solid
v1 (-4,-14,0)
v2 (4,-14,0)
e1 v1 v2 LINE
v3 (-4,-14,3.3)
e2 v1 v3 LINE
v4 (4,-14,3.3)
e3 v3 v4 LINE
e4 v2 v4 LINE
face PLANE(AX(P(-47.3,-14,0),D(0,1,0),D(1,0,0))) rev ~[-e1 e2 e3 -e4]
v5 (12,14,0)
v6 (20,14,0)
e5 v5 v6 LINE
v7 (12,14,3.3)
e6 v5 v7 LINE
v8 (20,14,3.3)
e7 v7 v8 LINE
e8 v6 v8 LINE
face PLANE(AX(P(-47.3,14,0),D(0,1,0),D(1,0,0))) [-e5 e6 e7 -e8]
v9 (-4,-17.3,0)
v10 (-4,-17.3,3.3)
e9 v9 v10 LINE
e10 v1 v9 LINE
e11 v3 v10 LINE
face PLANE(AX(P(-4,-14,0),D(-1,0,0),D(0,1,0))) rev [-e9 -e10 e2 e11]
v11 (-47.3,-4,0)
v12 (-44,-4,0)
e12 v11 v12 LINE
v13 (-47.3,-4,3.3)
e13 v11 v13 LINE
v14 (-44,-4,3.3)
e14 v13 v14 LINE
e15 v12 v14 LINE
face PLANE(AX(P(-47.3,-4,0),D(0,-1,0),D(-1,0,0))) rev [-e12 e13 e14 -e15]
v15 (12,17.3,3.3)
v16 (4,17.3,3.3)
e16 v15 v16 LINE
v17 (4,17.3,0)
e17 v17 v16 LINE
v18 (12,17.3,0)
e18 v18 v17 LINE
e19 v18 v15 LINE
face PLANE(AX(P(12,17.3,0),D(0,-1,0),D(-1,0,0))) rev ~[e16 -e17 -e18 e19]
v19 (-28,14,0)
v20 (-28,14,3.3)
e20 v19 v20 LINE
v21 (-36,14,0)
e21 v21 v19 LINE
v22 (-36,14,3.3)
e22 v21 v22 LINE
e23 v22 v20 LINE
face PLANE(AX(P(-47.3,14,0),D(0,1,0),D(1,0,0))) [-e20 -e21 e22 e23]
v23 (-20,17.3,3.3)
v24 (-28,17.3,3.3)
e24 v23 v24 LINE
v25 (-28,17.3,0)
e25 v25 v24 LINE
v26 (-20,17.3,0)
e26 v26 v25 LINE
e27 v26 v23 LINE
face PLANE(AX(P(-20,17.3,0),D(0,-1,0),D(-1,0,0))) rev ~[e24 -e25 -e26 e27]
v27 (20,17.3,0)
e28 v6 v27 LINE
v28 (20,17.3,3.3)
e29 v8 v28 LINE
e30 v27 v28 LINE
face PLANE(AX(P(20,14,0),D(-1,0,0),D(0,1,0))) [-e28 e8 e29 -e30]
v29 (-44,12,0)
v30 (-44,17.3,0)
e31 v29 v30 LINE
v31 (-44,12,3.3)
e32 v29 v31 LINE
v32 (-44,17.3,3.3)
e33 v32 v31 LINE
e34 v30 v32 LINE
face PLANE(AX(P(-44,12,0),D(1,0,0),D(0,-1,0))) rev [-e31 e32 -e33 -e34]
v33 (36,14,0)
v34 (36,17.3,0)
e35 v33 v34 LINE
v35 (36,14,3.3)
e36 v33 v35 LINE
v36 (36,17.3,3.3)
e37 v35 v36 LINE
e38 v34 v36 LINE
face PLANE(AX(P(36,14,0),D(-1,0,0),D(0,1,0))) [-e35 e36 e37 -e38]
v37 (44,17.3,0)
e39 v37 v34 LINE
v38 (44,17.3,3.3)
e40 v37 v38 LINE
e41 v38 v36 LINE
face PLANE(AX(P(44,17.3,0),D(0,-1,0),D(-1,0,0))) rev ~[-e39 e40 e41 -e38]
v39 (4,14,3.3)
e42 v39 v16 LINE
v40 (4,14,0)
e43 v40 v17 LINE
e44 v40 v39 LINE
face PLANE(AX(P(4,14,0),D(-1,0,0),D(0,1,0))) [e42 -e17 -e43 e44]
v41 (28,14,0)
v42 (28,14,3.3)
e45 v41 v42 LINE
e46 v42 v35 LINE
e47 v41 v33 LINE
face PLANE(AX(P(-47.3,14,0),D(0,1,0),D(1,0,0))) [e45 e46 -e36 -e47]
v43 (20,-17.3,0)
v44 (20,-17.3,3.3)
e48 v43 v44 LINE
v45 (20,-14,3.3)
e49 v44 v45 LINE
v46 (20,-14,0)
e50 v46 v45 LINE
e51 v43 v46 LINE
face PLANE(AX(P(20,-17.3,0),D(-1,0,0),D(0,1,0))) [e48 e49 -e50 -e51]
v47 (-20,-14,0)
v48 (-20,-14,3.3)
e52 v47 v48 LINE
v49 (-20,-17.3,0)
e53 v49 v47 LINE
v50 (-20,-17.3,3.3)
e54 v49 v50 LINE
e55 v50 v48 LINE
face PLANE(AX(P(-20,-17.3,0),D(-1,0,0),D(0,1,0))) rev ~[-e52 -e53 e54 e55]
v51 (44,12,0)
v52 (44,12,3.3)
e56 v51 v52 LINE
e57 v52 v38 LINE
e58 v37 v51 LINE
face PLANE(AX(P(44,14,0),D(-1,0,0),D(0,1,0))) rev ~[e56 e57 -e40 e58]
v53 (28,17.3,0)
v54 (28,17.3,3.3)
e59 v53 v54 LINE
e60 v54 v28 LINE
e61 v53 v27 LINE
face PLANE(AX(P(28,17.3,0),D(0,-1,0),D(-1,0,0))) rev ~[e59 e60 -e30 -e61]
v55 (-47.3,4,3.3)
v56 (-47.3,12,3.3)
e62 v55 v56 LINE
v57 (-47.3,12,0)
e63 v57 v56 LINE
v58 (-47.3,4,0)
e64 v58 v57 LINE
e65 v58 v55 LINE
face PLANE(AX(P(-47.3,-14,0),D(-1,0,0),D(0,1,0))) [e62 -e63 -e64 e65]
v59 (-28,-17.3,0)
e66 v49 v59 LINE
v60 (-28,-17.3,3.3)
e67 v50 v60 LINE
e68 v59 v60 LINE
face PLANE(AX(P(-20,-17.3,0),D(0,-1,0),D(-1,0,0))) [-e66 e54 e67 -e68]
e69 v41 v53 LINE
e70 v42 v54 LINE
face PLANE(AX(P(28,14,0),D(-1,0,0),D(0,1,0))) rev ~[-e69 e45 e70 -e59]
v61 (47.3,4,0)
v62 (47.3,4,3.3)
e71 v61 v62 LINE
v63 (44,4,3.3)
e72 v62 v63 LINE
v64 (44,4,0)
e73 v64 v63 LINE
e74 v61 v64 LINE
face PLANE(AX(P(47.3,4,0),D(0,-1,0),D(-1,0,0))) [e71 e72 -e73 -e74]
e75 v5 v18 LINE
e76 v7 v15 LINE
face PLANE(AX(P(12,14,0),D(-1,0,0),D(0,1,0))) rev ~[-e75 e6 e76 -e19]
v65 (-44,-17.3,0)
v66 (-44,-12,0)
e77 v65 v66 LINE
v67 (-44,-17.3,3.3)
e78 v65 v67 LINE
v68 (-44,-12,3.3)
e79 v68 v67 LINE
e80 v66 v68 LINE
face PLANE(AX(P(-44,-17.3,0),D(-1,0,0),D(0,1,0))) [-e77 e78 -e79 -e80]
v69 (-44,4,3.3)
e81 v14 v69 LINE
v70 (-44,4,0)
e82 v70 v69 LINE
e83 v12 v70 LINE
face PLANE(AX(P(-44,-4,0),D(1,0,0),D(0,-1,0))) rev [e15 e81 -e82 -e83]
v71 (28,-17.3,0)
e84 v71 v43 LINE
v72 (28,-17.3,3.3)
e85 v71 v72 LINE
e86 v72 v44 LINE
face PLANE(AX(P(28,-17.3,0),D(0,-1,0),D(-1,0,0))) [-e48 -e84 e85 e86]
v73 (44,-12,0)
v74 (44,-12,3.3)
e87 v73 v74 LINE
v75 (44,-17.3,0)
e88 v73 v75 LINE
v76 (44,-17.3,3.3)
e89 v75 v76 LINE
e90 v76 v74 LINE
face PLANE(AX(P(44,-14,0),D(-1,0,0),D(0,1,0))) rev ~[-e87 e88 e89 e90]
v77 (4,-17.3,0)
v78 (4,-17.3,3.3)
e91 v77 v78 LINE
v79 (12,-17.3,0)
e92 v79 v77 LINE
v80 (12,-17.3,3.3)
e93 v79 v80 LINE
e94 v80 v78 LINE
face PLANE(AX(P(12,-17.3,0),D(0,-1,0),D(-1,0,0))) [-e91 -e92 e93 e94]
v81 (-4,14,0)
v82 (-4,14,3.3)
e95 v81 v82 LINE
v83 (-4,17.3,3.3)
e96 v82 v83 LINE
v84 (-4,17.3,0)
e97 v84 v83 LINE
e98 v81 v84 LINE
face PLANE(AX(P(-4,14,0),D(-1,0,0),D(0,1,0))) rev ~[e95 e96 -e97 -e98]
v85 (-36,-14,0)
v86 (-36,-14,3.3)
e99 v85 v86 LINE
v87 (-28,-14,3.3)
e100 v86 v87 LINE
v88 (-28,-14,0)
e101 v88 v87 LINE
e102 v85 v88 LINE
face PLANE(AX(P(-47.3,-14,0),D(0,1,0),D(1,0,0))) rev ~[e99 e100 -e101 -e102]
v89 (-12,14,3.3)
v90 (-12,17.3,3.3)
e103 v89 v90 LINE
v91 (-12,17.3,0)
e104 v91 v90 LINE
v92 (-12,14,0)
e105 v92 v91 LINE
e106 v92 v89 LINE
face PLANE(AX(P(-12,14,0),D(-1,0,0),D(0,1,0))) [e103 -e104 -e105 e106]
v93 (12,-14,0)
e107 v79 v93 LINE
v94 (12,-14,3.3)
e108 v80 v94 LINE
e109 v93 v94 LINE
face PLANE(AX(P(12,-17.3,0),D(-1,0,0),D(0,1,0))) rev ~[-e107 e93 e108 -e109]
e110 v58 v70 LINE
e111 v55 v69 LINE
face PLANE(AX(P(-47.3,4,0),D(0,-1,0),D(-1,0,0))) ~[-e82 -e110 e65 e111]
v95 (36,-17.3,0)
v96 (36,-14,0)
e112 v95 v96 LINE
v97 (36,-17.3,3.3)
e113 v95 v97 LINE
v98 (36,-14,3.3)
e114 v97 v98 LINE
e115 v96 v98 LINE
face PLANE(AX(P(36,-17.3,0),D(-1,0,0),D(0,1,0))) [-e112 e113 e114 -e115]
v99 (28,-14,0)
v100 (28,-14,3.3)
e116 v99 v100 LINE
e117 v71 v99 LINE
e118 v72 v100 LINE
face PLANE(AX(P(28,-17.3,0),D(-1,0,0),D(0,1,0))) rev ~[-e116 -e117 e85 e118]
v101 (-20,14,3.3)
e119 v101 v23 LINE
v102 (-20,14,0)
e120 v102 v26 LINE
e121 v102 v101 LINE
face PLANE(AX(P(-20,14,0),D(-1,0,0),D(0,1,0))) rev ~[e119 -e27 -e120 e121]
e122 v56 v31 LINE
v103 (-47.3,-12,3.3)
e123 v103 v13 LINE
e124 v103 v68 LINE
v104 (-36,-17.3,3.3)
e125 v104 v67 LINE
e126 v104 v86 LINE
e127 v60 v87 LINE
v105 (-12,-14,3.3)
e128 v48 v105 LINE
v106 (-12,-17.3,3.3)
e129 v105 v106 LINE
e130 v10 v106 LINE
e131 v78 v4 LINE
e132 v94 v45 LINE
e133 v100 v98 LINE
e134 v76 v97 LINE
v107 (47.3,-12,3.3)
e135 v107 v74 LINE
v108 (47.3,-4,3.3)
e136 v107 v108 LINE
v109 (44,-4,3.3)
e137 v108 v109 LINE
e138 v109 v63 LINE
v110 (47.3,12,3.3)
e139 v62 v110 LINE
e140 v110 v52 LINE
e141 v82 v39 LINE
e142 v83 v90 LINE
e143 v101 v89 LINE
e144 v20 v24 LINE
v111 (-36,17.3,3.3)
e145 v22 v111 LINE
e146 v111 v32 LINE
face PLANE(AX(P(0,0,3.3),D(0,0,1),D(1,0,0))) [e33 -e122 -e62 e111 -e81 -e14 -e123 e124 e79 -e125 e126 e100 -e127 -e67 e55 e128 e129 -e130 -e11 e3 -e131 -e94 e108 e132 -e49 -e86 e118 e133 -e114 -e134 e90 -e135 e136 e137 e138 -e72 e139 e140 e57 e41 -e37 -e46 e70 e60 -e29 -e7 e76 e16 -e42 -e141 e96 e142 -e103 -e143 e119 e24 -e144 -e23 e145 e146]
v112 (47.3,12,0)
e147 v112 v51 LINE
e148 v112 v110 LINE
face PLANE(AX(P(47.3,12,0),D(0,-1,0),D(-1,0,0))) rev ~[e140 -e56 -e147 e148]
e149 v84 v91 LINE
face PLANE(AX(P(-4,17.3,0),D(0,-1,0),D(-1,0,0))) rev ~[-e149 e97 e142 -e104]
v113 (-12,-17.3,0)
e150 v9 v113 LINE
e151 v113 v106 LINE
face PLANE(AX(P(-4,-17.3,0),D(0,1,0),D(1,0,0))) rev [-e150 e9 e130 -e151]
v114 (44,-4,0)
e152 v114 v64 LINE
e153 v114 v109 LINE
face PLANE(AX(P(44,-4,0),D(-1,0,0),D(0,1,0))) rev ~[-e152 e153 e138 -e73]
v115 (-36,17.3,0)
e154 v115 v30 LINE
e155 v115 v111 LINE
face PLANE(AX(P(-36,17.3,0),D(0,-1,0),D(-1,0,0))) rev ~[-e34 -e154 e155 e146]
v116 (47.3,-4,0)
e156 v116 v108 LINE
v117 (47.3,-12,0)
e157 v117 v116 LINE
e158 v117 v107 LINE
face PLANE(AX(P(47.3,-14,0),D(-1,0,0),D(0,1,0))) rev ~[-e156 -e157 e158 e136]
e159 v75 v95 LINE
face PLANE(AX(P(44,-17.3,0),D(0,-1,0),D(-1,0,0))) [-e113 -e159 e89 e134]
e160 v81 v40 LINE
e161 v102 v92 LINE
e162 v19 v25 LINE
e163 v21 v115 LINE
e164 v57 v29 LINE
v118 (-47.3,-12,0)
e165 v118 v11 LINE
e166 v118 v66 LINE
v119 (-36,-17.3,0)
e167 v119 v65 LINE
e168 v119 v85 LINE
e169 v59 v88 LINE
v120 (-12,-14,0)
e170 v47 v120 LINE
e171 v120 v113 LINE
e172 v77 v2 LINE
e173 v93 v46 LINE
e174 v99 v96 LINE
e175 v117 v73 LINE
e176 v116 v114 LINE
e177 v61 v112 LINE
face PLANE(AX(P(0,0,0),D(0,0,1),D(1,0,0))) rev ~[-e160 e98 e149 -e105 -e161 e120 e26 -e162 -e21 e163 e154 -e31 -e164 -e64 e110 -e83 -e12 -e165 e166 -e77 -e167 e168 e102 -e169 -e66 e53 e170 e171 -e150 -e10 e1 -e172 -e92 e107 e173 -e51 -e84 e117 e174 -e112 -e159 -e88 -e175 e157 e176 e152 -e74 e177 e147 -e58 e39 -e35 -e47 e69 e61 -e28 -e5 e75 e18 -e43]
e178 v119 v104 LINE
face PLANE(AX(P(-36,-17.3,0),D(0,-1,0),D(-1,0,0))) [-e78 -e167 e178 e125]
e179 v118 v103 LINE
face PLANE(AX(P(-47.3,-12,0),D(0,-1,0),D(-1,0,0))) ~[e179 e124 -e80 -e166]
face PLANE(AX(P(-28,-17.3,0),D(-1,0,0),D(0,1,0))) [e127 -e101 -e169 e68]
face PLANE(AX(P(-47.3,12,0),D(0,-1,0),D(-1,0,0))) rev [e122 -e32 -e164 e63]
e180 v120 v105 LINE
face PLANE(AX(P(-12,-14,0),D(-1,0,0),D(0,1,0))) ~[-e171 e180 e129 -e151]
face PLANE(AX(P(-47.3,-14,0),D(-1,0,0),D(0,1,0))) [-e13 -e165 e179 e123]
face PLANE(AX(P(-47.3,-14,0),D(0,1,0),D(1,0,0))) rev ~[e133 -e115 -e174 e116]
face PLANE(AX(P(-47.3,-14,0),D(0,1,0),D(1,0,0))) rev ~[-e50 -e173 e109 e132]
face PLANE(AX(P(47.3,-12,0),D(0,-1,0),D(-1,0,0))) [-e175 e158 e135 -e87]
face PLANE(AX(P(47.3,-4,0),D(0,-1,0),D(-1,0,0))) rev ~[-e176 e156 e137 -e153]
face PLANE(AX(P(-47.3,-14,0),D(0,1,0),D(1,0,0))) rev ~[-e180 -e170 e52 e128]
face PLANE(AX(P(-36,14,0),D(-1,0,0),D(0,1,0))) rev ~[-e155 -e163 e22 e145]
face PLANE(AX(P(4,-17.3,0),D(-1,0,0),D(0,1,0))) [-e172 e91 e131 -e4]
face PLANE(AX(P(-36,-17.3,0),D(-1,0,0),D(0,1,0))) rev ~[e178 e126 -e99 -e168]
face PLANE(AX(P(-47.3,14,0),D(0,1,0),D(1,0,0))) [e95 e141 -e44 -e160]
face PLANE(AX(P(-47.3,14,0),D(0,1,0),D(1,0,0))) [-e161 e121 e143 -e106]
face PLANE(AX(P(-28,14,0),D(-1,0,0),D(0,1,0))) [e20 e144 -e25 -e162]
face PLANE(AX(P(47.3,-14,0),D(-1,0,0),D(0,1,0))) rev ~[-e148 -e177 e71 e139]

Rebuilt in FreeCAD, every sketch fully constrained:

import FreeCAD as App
import Part
import Sketcher

V = App.Vector
Q = App.Units.Quantity


def add_polygon(sketch, points):
    """Adds a closed chain of lines whose ends are joined by coincident constraints."""
    first, n = sketch.GeometryCount, len(points)
    for a, b in zip(points, points[1:] + points[:1]):
        sketch.addGeometry(Part.LineSegment(App.Vector(*a, 0), App.Vector(*b, 0)), False)
    for i in range(n):
        sketch.addConstraint(Sketcher.Constraint("Coincident", first + i, 2, first + (i + 1) % n, 1))

doc = App.newDocument("Part")
params = doc.addObject("Spreadsheet::Sheet", "Params")
for row, (alias, value) in enumerate([
    ("sketch1_height", "28 mm"),
    ("sketch1_width", "94.6 mm"),
    ("pad1_length", "3.3 mm"),
    ("sketch2_width", "8 mm"),
    ("sketch2_height", "3.3 mm"),
    ("pad2_length", "3.3 mm"),
    ("linearpattern_pitch", "16 mm"),
    ("linearpattern2_pitch", "16 mm"),
    ("sketch3_width", "8 mm"),
    ("sketch3_height", "3.3 mm"),
    ("pad3_length", "3.3 mm"),
    ("sketch4_width", "8 mm"),
    ("sketch4_height", "3.3 mm"),
    ("pad4_length", "3.3 mm"),
    ("sketch5_width", "8 mm"),
    ("sketch5_height", "3.3 mm"),
    ("pad5_length", "3.3 mm"),
    ("sketch6_width", "8 mm"),
    ("sketch6_height", "3.3 mm"),
    ("pad6_length", "3.3 mm"),
    ("sketch7_width", "8 mm"),
    ("sketch7_height", "3.3 mm"),
    ("pad7_length", "3.3 mm"),
    ("sketch8_height", "8 mm"),
    ("sketch8_height2", "2 mm"),
    ("sketch8_width", "3.3 mm"),
    ("pocket1_length", "3.3 mm"),
], start=1):
    params.set(f"A{row}", alias)
    params.set(f"B{row}", "=" + value)
    params.setAlias(f"B{row}", alias)

body = doc.addObject("PartDesign::Body", "Body")

sketch1 = body.newObject("Sketcher::SketchObject", "Sketch")
sketch1.AttachmentSupport = (doc.getObject("XY_Plane"), [""])
sketch1.MapMode = "FlatFace"
add_polygon(sketch1, [(-47.3, 14), (-47.3, -14), (47.3, -14), (47.3, 14)])
sketch1.addConstraint([
    Sketcher.Constraint("Vertical", 0),
    Sketcher.Constraint("Horizontal", 1),
    Sketcher.Constraint("Vertical", 2),
    Sketcher.Constraint("Horizontal", 3),
    Sketcher.Constraint("Symmetric", 0, 2, 2, 2, -1, 1),
    Sketcher.Constraint("DistanceY", 0, 2, 0, 1, Q("28 mm")),
    Sketcher.Constraint("DistanceX", 1, 1, 1, 2, Q("94.6 mm")),
])
sketch1.setExpression("Constraints[9]", "Params.sketch1_height")
sketch1.setExpression("Constraints[10]", "Params.sketch1_width")
pad1 = body.newObject("PartDesign::Pad", "Pad")
pad1.Profile = sketch1
pad1.setExpression("Length", "Params.pad1_length")

sketch2 = body.newObject("Sketcher::SketchObject", "Sketch001")
sketch2.AttachmentSupport = (doc.getObject("XY_Plane"), [""])
sketch2.MapMode = "FlatFace"
add_polygon(sketch2, [(-4, 17.3), (-4, 14), (-12, 14), (-12, 17.3)])
sketch2.addConstraint([
    Sketcher.Constraint("Vertical", 0),
    Sketcher.Constraint("Horizontal", 1),
    Sketcher.Constraint("Vertical", 2),
    Sketcher.Constraint("Horizontal", 3),
    Sketcher.Constraint("DistanceX", 1, 2, 1, 1, Q("8 mm")),
    Sketcher.Constraint("DistanceY", 0, 2, 0, 1, Q("3.3 mm")),
    Sketcher.Constraint("DistanceX", 0, 2, -1, 1, Q("4 mm")),
    Sketcher.Constraint("DistanceY", -1, 1, 0, 2, Q("14 mm")),
])
sketch2.setExpression("Constraints[8]", "Params.sketch2_width")
sketch2.setExpression("Constraints[9]", "Params.sketch2_height")
pad2 = body.newObject("PartDesign::Pad", "Pad001")
pad2.Profile = sketch2
pad2.setExpression("Length", "Params.pad2_length")
doc.recompute()

linearpattern = body.newObject("PartDesign::LinearPattern", "LinearPattern")
linearpattern.Originals = [pad2]
linearpattern.Direction = (doc.getObject("X_Axis"), [""])
linearpattern.Mode = "offset"
linearpattern.setExpression("Offset", "Params.linearpattern_pitch")
linearpattern.Occurrences = 3
linearpattern.Reversed = True
body.Tip = linearpattern
doc.recompute()

linearpattern2 = body.newObject("PartDesign::LinearPattern", "LinearPattern001")
linearpattern2.Originals = [pad2]
linearpattern2.Direction = (doc.getObject("X_Axis"), [""])
linearpattern2.Mode = "offset"
linearpattern2.setExpression("Offset", "Params.linearpattern2_pitch")
linearpattern2.Occurrences = 4
body.Tip = linearpattern2
doc.recompute()

mirrored = body.newObject("PartDesign::Mirrored", "Mirrored")
mirrored.Originals = [pad2]
mirrored.MirrorPlane = (doc.getObject("XZ_Plane"), [""])
body.Tip = mirrored

sketch3 = body.newObject("Sketcher::SketchObject", "Sketch002")
sketch3.AttachmentSupport = (doc.getObject("XY_Plane"), [""])
sketch3.MapMode = "FlatFace"
add_polygon(sketch3, [(-20, -14), (-20, -17.3), (-28, -17.3), (-28, -14)])
sketch3.addConstraint([
    Sketcher.Constraint("Vertical", 0),
    Sketcher.Constraint("Horizontal", 1),
    Sketcher.Constraint("Vertical", 2),
    Sketcher.Constraint("Horizontal", 3),
    Sketcher.Constraint("DistanceX", 1, 2, 1, 1, Q("8 mm")),
    Sketcher.Constraint("DistanceY", 0, 2, 0, 1, Q("3.3 mm")),
    Sketcher.Constraint("DistanceX", 0, 2, -1, 1, Q("20 mm")),
    Sketcher.Constraint("DistanceY", 2, 2, -1, 1, Q("14 mm")),
])
sketch3.setExpression("Constraints[8]", "Params.sketch3_width")
sketch3.setExpression("Constraints[9]", "Params.sketch3_height")
pad3 = body.newObject("PartDesign::Pad", "Pad002")
pad3.Profile = sketch3
pad3.setExpression("Length", "Params.pad3_length")

sketch4 = body.newObject("Sketcher::SketchObject", "Sketch003")
sketch4.AttachmentSupport = (doc.getObject("XY_Plane"), [""])
sketch4.MapMode = "FlatFace"
add_polygon(sketch4, [(-36, -14), (-36, -17.3), (-44, -17.3), (-44, -14)])
sketch4.addConstraint([
    Sketcher.Constraint("Vertical", 0),
    Sketcher.Constraint("Horizontal", 1),
    Sketcher.Constraint("Vertical", 2),
    Sketcher.Constraint("Horizontal", 3),
    Sketcher.Constraint("DistanceX", 1, 2, 1, 1, Q("8 mm")),
    Sketcher.Constraint("DistanceY", 0, 2, 0, 1, Q("3.3 mm")),
    Sketcher.Constraint("DistanceX", 0, 2, -1, 1, Q("36 mm")),
    Sketcher.Constraint("DistanceY", 2, 2, -1, 1, Q("14 mm")),
])
sketch4.setExpression("Constraints[8]", "Params.sketch4_width")
sketch4.setExpression("Constraints[9]", "Params.sketch4_height")
pad4 = body.newObject("PartDesign::Pad", "Pad003")
pad4.Profile = sketch4
pad4.setExpression("Length", "Params.pad4_length")

sketch5 = body.newObject("Sketcher::SketchObject", "Sketch004")
sketch5.AttachmentSupport = (doc.getObject("XY_Plane"), [""])
sketch5.MapMode = "FlatFace"
add_polygon(sketch5, [(12, -14), (12, -17.3), (4, -17.3), (4, -14)])
sketch5.addConstraint([
    Sketcher.Constraint("Vertical", 0),
    Sketcher.Constraint("Horizontal", 1),
    Sketcher.Constraint("Vertical", 2),
    Sketcher.Constraint("Horizontal", 3),
    Sketcher.Constraint("DistanceX", 1, 2, 1, 1, Q("8 mm")),
    Sketcher.Constraint("DistanceY", 0, 2, 0, 1, Q("3.3 mm")),
    Sketcher.Constraint("DistanceX", -1, 1, 0, 2, Q("12 mm")),
    Sketcher.Constraint("DistanceY", 2, 2, -1, 1, Q("14 mm")),
])
sketch5.setExpression("Constraints[8]", "Params.sketch5_width")
sketch5.setExpression("Constraints[9]", "Params.sketch5_height")
pad5 = body.newObject("PartDesign::Pad", "Pad004")
pad5.Profile = sketch5
pad5.setExpression("Length", "Params.pad5_length")

sketch6 = body.newObject("Sketcher::SketchObject", "Sketch005")
sketch6.AttachmentSupport = (doc.getObject("XY_Plane"), [""])
sketch6.MapMode = "FlatFace"
add_polygon(sketch6, [(28, -14), (28, -17.3), (20, -17.3), (20, -14)])
sketch6.addConstraint([
    Sketcher.Constraint("Vertical", 0),
    Sketcher.Constraint("Horizontal", 1),
    Sketcher.Constraint("Vertical", 2),
    Sketcher.Constraint("Horizontal", 3),
    Sketcher.Constraint("DistanceX", 1, 2, 1, 1, Q("8 mm")),
    Sketcher.Constraint("DistanceY", 0, 2, 0, 1, Q("3.3 mm")),
    Sketcher.Constraint("DistanceX", -1, 1, 0, 2, Q("28 mm")),
    Sketcher.Constraint("DistanceY", 2, 2, -1, 1, Q("14 mm")),
])
sketch6.setExpression("Constraints[8]", "Params.sketch6_width")
sketch6.setExpression("Constraints[9]", "Params.sketch6_height")
pad6 = body.newObject("PartDesign::Pad", "Pad005")
pad6.Profile = sketch6
pad6.setExpression("Length", "Params.pad6_length")

sketch7 = body.newObject("Sketcher::SketchObject", "Sketch006")
sketch7.AttachmentSupport = (doc.getObject("XY_Plane"), [""])
sketch7.MapMode = "FlatFace"
add_polygon(sketch7, [(44, -14), (44, -17.3), (36, -17.3), (36, -14)])
sketch7.addConstraint([
    Sketcher.Constraint("Vertical", 0),
    Sketcher.Constraint("Horizontal", 1),
    Sketcher.Constraint("Vertical", 2),
    Sketcher.Constraint("Horizontal", 3),
    Sketcher.Constraint("DistanceX", 1, 2, 1, 1, Q("8 mm")),
    Sketcher.Constraint("DistanceY", 0, 2, 0, 1, Q("3.3 mm")),
    Sketcher.Constraint("DistanceX", -1, 1, 0, 2, Q("44 mm")),
    Sketcher.Constraint("DistanceY", 2, 2, -1, 1, Q("14 mm")),
])
sketch7.setExpression("Constraints[8]", "Params.sketch7_width")
sketch7.setExpression("Constraints[9]", "Params.sketch7_height")
pad7 = body.newObject("PartDesign::Pad", "Pad006")
pad7.Profile = sketch7
pad7.setExpression("Length", "Params.pad7_length")

sketch8 = body.newObject("Sketcher::SketchObject", "Sketch007")
sketch8.AttachmentSupport = (doc.getObject("XY_Plane"), [""])
sketch8.MapMode = "FlatFace"
add_polygon(sketch8, [(47.3, 4), (47.3, -4), (44, -4), (44, 4)])
add_polygon(sketch8, [(47.3, 14), (47.3, 12), (44, 12), (44, 14)])
add_polygon(sketch8, [(47.3, -12), (47.3, -14), (44, -14), (44, -12)])
sketch8.addConstraint([
    Sketcher.Constraint("Vertical", 0),
    Sketcher.Constraint("Horizontal", 1),
    Sketcher.Constraint("Vertical", 2),
    Sketcher.Constraint("Horizontal", 3),
    Sketcher.Constraint("Vertical", 4),
    Sketcher.Constraint("Horizontal", 5),
    Sketcher.Constraint("Vertical", 6),
    Sketcher.Constraint("Horizontal", 7),
    Sketcher.Constraint("Vertical", 8),
    Sketcher.Constraint("Horizontal", 9),
    Sketcher.Constraint("Vertical", 10),
    Sketcher.Constraint("Horizontal", 11),
    Sketcher.Constraint("Symmetric", 7, 2, 8, 2, -1),
    Sketcher.Constraint("Symmetric", 5, 2, 10, 2, -1),
    Sketcher.Constraint("Vertical", 3, 2, 4, 2),
    Sketcher.Constraint("Vertical", 2, 2, 5, 2),
    Sketcher.Constraint("DistanceY", 0, 2, 0, 1, Q("8 mm")),
    Sketcher.Constraint("DistanceY", 4, 2, 4, 1, Q("2 mm")),
    Sketcher.Constraint("DistanceX", 1, 2, 1, 1, Q("3.3 mm")),
    Sketcher.Constraint("DistanceY", 0, 2, -1, 1, Q("4 mm")),
    Sketcher.Constraint("DistanceX", -1, 1, 1, 2, Q("44 mm")),
    Sketcher.Constraint("DistanceY", -1, 1, 4, 2, Q("12 mm")),
])
sketch8.setExpression("Constraints[28]", "Params.sketch8_height")
sketch8.setExpression("Constraints[29]", "Params.sketch8_height2")
sketch8.setExpression("Constraints[30]", "Params.sketch8_width")
pocket1 = body.newObject("PartDesign::Pocket", "Pocket")
pocket1.Profile = sketch8
pocket1.setExpression("Length", "Params.pocket1_length")
pocket1.Reversed = True
doc.recompute()

mirrored2 = body.newObject("PartDesign::Mirrored", "Mirrored001")
mirrored2.Originals = [pocket1]
mirrored2.MirrorPlane = (doc.getObject("YZ_Plane"), [""])
body.Tip = mirrored2

doc.recompute()
